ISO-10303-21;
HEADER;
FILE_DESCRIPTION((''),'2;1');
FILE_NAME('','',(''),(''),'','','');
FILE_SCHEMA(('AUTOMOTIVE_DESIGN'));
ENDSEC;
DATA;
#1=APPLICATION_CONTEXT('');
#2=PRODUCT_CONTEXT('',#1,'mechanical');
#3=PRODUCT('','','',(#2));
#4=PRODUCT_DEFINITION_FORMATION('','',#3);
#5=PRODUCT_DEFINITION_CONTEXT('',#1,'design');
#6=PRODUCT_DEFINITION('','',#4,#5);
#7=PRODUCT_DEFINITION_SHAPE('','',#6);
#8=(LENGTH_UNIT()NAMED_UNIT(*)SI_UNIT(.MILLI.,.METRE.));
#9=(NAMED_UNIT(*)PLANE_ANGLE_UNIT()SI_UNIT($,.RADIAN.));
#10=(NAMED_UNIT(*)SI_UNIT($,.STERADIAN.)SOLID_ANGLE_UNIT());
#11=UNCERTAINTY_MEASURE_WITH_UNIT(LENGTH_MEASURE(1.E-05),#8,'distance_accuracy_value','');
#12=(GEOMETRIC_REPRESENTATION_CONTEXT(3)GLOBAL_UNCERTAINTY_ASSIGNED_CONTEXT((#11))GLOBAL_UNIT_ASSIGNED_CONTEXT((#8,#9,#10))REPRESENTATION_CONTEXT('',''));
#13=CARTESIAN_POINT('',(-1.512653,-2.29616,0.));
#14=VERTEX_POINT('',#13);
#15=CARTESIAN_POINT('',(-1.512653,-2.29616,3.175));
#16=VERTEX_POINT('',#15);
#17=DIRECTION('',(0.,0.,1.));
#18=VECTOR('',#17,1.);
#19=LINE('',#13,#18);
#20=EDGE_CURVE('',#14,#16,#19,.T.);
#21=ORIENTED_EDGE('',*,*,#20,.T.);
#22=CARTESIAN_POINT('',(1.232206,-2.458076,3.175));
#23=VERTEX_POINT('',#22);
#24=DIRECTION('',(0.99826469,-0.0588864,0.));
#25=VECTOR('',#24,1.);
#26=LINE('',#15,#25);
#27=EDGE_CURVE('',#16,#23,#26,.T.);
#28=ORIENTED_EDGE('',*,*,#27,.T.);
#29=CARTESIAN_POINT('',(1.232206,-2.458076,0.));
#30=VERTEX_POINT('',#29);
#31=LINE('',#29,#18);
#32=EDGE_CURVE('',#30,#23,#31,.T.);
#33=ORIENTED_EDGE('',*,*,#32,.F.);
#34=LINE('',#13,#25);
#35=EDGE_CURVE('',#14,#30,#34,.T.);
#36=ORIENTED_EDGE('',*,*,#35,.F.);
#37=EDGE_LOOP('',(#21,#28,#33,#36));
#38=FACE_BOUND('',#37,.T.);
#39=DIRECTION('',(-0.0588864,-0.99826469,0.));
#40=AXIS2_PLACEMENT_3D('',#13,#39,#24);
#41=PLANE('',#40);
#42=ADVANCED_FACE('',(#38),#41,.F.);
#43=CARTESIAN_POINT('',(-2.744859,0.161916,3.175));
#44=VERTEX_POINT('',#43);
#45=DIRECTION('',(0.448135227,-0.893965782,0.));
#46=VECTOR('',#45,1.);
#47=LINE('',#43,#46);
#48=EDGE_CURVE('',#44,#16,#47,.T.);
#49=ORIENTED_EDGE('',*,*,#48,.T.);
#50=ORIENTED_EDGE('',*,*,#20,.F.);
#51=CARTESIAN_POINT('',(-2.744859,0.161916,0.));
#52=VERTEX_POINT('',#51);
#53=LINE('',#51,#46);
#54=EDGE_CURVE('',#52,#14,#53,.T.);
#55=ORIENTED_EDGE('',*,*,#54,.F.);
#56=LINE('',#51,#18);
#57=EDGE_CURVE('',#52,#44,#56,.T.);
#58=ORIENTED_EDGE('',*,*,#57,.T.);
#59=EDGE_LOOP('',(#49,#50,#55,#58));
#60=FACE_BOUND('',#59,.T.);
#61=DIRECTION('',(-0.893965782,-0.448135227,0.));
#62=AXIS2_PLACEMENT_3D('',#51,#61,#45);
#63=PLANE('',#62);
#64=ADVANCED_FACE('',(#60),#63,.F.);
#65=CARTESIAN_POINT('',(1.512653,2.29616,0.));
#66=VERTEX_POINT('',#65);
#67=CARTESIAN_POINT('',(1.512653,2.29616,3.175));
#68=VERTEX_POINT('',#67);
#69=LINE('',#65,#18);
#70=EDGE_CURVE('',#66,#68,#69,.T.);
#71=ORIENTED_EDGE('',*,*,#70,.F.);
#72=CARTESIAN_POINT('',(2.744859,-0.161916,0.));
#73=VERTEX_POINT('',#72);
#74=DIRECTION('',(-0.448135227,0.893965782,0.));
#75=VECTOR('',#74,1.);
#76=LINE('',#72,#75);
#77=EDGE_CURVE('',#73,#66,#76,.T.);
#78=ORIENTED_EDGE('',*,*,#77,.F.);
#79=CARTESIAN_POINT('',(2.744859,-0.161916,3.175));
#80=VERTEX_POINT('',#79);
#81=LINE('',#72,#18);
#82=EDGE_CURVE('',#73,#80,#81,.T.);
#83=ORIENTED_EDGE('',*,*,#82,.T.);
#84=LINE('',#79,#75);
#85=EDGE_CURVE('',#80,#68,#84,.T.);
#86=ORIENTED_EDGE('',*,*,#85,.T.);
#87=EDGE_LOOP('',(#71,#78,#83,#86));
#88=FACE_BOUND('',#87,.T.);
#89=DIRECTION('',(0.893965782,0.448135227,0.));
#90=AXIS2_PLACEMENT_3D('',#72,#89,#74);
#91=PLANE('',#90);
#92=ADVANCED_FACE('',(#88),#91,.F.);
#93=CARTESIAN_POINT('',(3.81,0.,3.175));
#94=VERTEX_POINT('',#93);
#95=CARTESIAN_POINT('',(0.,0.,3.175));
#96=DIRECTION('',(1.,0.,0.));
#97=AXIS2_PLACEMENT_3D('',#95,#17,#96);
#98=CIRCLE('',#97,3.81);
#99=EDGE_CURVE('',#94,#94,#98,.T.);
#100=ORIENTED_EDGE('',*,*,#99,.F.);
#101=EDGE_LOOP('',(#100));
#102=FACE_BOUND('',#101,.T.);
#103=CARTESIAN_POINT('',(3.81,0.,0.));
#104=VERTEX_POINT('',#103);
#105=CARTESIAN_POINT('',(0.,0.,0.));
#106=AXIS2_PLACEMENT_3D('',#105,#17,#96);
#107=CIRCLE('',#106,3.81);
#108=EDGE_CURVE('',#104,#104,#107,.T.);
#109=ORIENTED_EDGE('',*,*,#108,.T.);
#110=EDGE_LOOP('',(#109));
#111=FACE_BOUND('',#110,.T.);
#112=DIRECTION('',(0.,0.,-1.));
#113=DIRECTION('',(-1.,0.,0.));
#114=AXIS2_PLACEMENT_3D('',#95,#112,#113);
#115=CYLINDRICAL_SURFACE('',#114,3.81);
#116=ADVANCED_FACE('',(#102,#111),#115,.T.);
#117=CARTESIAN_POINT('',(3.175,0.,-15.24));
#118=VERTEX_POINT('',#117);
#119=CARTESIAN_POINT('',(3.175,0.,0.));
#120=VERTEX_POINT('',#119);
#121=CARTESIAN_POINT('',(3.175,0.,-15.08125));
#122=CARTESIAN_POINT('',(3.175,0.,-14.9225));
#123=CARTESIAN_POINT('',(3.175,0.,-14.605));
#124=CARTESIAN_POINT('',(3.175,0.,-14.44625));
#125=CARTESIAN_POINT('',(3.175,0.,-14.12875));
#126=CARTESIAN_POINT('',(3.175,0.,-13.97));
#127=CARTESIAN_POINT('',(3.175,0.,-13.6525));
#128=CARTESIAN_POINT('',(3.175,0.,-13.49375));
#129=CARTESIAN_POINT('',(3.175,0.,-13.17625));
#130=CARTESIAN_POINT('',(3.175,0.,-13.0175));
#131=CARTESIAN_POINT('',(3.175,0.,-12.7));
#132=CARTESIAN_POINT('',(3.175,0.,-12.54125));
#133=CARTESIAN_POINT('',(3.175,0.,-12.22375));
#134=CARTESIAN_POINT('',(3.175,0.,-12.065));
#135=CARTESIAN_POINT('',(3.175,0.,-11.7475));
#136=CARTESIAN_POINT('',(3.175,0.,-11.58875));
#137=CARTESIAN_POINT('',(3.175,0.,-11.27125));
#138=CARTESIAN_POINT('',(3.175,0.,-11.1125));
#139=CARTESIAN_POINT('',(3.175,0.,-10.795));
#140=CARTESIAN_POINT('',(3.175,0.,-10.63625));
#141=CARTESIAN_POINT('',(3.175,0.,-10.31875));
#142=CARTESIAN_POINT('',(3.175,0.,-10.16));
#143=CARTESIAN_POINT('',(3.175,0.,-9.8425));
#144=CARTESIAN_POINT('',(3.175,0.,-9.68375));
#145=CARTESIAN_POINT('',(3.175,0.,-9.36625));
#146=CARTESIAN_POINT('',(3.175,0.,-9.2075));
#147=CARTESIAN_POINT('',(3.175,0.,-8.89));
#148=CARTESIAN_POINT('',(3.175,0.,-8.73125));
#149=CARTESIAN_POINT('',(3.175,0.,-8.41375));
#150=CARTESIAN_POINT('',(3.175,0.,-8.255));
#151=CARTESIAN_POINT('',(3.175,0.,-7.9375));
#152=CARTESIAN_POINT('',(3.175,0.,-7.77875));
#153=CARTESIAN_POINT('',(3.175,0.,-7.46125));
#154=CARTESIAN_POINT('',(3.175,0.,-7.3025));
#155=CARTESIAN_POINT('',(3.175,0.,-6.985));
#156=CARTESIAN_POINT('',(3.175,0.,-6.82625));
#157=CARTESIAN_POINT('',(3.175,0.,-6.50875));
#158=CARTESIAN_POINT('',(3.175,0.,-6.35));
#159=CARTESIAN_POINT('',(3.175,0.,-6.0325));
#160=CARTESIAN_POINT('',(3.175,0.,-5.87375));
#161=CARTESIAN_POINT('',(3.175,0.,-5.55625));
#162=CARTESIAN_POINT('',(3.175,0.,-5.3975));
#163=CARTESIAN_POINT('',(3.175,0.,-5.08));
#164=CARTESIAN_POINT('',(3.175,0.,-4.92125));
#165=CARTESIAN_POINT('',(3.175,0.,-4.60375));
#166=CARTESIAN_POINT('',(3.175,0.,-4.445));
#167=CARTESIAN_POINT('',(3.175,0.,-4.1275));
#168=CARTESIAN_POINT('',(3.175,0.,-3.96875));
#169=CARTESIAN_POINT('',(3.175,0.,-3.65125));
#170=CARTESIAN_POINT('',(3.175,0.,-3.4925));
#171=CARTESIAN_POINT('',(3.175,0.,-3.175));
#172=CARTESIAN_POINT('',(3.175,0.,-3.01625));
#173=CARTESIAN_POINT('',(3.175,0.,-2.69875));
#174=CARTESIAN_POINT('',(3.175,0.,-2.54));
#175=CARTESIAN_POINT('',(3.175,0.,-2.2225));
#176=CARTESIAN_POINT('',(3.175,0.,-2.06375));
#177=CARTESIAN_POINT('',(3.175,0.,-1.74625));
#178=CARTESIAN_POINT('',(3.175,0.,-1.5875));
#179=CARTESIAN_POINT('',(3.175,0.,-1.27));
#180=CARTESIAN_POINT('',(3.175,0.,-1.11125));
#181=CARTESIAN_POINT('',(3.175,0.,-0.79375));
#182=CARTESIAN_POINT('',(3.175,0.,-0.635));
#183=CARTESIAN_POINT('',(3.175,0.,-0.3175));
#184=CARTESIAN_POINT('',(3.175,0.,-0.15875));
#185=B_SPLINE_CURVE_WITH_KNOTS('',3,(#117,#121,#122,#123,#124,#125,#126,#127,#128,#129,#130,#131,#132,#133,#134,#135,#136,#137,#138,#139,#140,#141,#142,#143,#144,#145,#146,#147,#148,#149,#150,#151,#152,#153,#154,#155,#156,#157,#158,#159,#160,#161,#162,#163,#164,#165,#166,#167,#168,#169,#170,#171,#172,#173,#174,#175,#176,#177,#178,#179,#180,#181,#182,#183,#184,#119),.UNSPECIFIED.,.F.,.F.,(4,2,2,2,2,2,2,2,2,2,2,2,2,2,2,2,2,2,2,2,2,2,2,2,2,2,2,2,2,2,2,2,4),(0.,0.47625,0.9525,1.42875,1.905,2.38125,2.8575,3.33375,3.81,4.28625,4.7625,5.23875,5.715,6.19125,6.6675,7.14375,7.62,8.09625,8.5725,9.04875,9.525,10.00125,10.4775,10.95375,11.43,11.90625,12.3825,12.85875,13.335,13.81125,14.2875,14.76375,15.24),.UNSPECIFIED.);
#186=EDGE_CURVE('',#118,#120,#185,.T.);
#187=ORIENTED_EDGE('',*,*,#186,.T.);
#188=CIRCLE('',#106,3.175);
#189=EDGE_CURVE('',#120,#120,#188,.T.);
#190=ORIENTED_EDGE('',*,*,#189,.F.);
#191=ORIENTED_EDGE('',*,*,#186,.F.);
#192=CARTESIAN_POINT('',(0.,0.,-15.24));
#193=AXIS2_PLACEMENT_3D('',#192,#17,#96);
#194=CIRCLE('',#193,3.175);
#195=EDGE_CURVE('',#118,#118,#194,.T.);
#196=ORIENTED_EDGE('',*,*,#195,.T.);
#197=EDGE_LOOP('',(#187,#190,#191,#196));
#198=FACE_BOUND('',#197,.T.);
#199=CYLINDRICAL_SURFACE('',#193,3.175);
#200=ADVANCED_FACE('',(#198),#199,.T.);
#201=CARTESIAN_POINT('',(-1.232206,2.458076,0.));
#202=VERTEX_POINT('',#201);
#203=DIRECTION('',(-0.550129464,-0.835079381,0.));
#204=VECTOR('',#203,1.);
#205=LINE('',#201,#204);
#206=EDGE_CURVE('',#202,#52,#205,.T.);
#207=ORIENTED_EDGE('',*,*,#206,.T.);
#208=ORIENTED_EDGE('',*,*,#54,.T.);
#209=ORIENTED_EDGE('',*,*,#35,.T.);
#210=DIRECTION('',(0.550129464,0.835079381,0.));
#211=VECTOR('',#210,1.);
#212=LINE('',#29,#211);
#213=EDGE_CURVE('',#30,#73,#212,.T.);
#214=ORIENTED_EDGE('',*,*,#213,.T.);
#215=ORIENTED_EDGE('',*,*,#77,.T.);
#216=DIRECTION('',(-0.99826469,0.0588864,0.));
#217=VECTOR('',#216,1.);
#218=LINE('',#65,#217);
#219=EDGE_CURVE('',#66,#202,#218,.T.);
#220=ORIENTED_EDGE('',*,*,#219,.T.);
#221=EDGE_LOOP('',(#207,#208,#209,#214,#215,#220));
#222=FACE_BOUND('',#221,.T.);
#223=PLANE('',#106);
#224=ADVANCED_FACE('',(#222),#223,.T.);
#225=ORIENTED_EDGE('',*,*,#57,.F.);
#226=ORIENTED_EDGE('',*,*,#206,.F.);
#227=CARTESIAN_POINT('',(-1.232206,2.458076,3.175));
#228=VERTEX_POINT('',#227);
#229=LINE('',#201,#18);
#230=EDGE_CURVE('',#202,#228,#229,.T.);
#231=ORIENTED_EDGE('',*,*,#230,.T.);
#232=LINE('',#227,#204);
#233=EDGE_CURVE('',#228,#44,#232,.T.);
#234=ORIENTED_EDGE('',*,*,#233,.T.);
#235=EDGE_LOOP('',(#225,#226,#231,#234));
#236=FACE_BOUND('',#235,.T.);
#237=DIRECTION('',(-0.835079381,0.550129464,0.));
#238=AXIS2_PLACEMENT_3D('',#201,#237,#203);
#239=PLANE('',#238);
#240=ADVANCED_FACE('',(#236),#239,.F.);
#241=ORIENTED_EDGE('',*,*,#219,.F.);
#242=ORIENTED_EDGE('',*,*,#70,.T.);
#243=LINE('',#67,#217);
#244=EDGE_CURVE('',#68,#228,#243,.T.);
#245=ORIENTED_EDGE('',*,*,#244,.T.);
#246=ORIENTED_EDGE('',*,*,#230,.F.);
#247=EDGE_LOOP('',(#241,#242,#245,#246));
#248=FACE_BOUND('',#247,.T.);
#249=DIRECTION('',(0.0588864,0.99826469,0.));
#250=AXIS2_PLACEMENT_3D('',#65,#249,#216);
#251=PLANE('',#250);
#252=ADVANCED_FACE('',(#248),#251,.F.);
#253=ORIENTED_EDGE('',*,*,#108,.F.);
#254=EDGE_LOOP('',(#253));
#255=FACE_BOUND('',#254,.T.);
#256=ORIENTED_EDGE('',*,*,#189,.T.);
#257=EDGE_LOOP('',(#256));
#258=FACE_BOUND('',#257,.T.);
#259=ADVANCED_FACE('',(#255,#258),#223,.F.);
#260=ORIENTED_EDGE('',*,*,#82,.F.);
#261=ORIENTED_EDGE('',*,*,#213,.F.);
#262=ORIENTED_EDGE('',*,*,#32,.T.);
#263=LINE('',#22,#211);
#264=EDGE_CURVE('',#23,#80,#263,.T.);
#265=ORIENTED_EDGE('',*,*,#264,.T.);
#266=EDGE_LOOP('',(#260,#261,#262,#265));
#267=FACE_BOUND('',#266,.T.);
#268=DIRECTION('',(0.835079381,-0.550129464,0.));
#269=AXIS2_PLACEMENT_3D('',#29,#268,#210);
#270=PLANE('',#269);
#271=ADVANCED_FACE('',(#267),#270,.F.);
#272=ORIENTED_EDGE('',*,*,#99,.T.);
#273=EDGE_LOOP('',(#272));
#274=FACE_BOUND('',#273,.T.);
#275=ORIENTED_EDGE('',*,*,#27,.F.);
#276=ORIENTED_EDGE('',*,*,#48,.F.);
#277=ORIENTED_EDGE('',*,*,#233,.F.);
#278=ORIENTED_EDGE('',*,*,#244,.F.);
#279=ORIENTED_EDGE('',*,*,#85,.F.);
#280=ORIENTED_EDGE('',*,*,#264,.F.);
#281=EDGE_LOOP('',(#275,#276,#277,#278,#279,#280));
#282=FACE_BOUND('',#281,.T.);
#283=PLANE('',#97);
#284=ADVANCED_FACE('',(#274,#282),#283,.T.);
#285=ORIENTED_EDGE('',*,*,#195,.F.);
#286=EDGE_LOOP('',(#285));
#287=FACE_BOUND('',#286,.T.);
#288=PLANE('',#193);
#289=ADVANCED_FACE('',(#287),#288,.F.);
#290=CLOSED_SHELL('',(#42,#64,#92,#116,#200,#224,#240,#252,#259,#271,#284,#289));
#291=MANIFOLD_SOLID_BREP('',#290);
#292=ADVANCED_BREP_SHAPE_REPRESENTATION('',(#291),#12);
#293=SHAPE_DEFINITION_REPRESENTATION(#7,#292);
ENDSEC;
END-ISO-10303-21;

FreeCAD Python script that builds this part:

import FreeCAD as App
import Part
import Sketcher
Q = App.Units.Quantity


def add_polygon(sketch, points):
    """Adds a closed chain of lines whose ends are joined by coincident constraints."""
    first, n = sketch.GeometryCount, len(points)
    for a, b in zip(points, points[1:] + points[:1]):
        sketch.addGeometry(Part.LineSegment(App.Vector(*a, 0), App.Vector(*b, 0)), False)
    for i in range(n):
        sketch.addConstraint(Sketcher.Constraint("Coincident", first + i, 2, first + (i + 1) % n, 1))

doc = App.newDocument("Part")
params = doc.addObject("Spreadsheet::Sheet", "Params")
for row, (alias, value) in enumerate([
    ("sketch1_diameter", "0.25 in"),
    ("pad1_length", "0.6 in"),
    ("sketch2_diameter", "0.3 in"),
    ("pad2_length", "0.125 in"),
    ("pocket1_length", "0.125 in"),
], start=1):
    params.set(f"A{row}", alias)
    params.set(f"B{row}", "=" + value)
    params.setAlias(f"B{row}", alias)

body = doc.addObject("PartDesign::Body", "Body")

# Sketch on XY plane
sketch1 = body.newObject("Sketcher::SketchObject", "Sketch")
sketch1.AttachmentSupport = (doc.getObject("XY_Plane"), [""])
sketch1.MapMode = "FlatFace"
sketch1.addGeometry(Part.Circle(App.Vector(0, 0, 0), App.Vector(0, 0, 1), 3.2), False)
sketch1.addConstraint(Sketcher.Constraint("Coincident", 0, 3, -1, 1))
sketch1.addConstraint(Sketcher.Constraint("Diameter", 0, Q("0.25 in")))
sketch1.setExpression("Constraints[1]", "Params.sketch1_diameter")
pad1 = body.newObject("PartDesign::Pad", "Pad")
pad1.Profile = sketch1
pad1.setExpression("Length", "Params.pad1_length")
pad1.Reversed = True

# Sketch on XY plane
sketch2 = body.newObject("Sketcher::SketchObject", "Sketch001")
sketch2.AttachmentSupport = (doc.getObject("XY_Plane"), [""])
sketch2.MapMode = "FlatFace"
sketch2.addGeometry(Part.Circle(App.Vector(0, 0, 0), App.Vector(0, 0, 1), 3.8), False)
sketch2.addConstraint(Sketcher.Constraint("Coincident", 0, 3, -1, 1))
sketch2.addConstraint(Sketcher.Constraint("Diameter", 0, Q("0.3 in")))
sketch2.setExpression("Constraints[1]", "Params.sketch2_diameter")
pad2 = body.newObject("PartDesign::Pad", "Pad001")
pad2.Profile = sketch2
pad2.setExpression("Length", "Params.pad2_length")

# Sketch on XY plane
sketch3 = body.newObject("Sketcher::SketchObject", "Sketch002")
sketch3.AttachmentSupport = (doc.getObject("XY_Plane"), [""])
sketch3.MapMode = "FlatFace"
sketch3.AttachmentOffset = App.Placement(App.Vector(0, 0, 0.125 * 25.4), App.Rotation())
add_polygon(sketch3, [(-2.7, 0.2), (-1.5, -2.3), (1.2, -2.5), (2.7, -0.2), (1.5, 2.3), (-1.2, 2.5)])  # lines 0-5
sketch3.addConstraint(Sketcher.Constraint("Symmetric", 0, 2, 3, 2, -1, 1))
sketch3.addConstraint(Sketcher.Constraint("Symmetric", 1, 2, 4, 2, -1, 1))
sketch3.addConstraint(Sketcher.Constraint("Symmetric", 2, 2, 5, 2, -1, 1))
sketch3.addConstraint(Sketcher.Constraint("Equal", 0, 1))
sketch3.addConstraint(Sketcher.Constraint("Equal", 1, 2))
sketch3.addConstraint(Sketcher.Constraint("DistanceY", 0, 2, -1, 1, Q("0.0904 in")))
sketch3.addConstraint(Sketcher.Constraint("DistanceY", 1, 2, 2, 2, Q("0.0904 in")))
sketch3.addConstraint(Sketcher.Constraint("Distance", 0, Q("2.749631 mm")))
sketch3.addConstraint(Sketcher.Constraint("DistanceX", -1, 1, 2, 2, Q("2.744859 mm")))
pocket1 = body.newObject("PartDesign::Pocket", "Pocket")
pocket1.Profile = sketch3
pocket1.setExpression("Length", "Params.pocket1_length")

doc.recompute()
